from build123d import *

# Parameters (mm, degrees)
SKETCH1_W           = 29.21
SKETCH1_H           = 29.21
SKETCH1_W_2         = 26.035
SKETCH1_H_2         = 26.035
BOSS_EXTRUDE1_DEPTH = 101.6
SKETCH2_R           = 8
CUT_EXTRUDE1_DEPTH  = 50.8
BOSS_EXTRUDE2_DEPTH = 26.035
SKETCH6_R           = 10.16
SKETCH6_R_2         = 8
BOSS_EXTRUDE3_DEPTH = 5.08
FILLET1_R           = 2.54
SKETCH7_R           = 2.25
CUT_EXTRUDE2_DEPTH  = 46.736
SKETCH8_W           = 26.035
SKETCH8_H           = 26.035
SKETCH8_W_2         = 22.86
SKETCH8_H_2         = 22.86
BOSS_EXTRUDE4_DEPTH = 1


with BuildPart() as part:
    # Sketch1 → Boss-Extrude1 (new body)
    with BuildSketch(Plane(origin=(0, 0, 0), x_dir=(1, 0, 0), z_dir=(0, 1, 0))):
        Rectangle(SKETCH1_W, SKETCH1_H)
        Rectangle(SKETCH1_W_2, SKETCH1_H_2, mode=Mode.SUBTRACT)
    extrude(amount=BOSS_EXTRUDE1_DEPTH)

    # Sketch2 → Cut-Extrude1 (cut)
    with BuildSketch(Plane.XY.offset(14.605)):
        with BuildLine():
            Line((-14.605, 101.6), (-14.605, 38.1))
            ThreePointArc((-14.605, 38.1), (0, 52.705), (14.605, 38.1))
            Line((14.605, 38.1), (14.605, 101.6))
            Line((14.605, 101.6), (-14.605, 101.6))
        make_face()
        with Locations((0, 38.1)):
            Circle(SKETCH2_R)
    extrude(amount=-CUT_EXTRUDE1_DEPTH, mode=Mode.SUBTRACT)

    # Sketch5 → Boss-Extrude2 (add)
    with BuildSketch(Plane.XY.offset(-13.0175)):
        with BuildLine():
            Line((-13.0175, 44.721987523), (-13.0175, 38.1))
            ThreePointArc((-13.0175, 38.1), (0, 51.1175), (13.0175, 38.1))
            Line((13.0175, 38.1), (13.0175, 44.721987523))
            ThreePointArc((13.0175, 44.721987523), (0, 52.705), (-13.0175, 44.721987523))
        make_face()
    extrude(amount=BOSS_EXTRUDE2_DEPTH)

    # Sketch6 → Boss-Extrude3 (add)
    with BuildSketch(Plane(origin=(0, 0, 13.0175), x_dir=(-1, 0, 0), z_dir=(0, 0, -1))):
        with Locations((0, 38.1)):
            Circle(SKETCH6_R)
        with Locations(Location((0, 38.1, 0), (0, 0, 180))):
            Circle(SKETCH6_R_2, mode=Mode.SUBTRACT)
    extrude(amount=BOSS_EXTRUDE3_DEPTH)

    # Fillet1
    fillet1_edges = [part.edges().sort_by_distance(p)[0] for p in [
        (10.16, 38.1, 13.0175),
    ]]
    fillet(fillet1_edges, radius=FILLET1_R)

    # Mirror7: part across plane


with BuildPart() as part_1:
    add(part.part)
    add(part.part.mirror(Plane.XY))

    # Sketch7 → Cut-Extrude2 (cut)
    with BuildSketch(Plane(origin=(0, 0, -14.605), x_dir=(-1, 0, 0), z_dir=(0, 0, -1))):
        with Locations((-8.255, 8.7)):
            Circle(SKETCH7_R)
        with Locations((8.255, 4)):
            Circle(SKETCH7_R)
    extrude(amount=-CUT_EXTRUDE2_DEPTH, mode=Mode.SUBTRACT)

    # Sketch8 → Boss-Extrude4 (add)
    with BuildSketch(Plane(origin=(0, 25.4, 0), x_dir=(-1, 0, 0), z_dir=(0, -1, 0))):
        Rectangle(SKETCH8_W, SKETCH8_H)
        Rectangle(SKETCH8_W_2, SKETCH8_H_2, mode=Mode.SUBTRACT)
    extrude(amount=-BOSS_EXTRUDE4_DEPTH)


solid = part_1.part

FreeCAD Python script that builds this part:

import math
import FreeCAD as App
import Part
import Sketcher
Q = App.Units.Quantity


def edges_at(feature, points):
    """Names of the edges that pass closest to the given points."""
    edges = feature.Shape.Edges
    near = lambda p: min(range(len(edges)), key=lambda i: edges[i].distToShape(Part.Vertex(*p))[0])
    return sorted({f"Edge{near(p) + 1}" for p in points})


def add_polygon(sketch, points):
    """Adds a closed chain of lines whose ends are joined by coincident constraints."""
    first, n = sketch.GeometryCount, len(points)
    for a, b in zip(points, points[1:] + points[:1]):
        sketch.addGeometry(Part.LineSegment(App.Vector(*a, 0), App.Vector(*b, 0)), False)
    for i in range(n):
        sketch.addConstraint(Sketcher.Constraint("Coincident", first + i, 2, first + (i + 1) % n, 1))

doc = App.newDocument("Part")
body = doc.addObject("PartDesign::Body", "Body")

# Sketch on XZ plane
sketch1 = body.newObject("Sketcher::SketchObject", "Sketch")
sketch1.AttachmentSupport = (doc.getObject("XZ_Plane"), [""])
sketch1.MapMode = "FlatFace"
add_polygon(sketch1, [(-15, -15), (-15, 15), (15, 15), (15, -15)])  # lines 0-3
add_polygon(sketch1, [(13, 13), (-13, 13), (-13, -13), (13, -13)])  # lines 4-7
sketch1.addConstraint(Sketcher.Constraint("Vertical", 0))
sketch1.addConstraint(Sketcher.Constraint("Horizontal", 1))
sketch1.addConstraint(Sketcher.Constraint("Vertical", 2))
sketch1.addConstraint(Sketcher.Constraint("Horizontal", 3))
sketch1.addConstraint(Sketcher.Constraint("Horizontal", 4))
sketch1.addConstraint(Sketcher.Constraint("Vertical", 5))
sketch1.addConstraint(Sketcher.Constraint("Horizontal", 6))
sketch1.addConstraint(Sketcher.Constraint("Vertical", 7))
sketch1.addConstraint(Sketcher.Constraint("Symmetric", 0, 2, 2, 2, -1, 1))
sketch1.addConstraint(Sketcher.Constraint("Symmetric", 4, 2, 6, 2, -1, 1))
sketch1.addConstraint(Sketcher.Constraint("Equal", 3, 0))
sketch1.addConstraint(Sketcher.Constraint("Equal", 6, 5))
sketch1.addConstraint(Sketcher.Constraint("DistanceX", 1, 1, 1, 2, Q("1.15 in")))
sketch1.addConstraint(Sketcher.Constraint("DistanceX", 4, 2, 4, 1, Q("1.025 in")))
pad1 = body.newObject("PartDesign::Pad", "Pad")
pad1.Profile = sketch1
pad1.Length = Q("4 in")
pad1.Reversed = True

# Sketch on XY plane
sketch2 = body.newObject("Sketcher::SketchObject", "Sketch001")
sketch2.AttachmentSupport = (doc.getObject("XY_Plane"), [""])
sketch2.MapMode = "FlatFace"
sketch2.AttachmentOffset = App.Placement(App.Vector(0, 0, 0.575 * 25.4), App.Rotation())
sketch2.addGeometry(Part.LineSegment(App.Vector(-15, 102, 0), App.Vector(-15, 38, 0)), False)
sketch2.addGeometry(Part.ArcOfCircle(Part.Circle(App.Vector(0, 38, 0), App.Vector(0, 0, 1), 15), math.radians(0), math.radians(180)), False)
sketch2.addGeometry(Part.LineSegment(App.Vector(15, 38, 0), App.Vector(15, 102, 0)), False)
sketch2.addGeometry(Part.LineSegment(App.Vector(15, 102, 0), App.Vector(-15, 102, 0)), False)
sketch2.addGeometry(Part.Circle(App.Vector(0, 38, 0), App.Vector(0, 0, 1), 8), False)
sketch2.addConstraint(Sketcher.Constraint("Tangent", 0, 2, 1, 2))
sketch2.addConstraint(Sketcher.Constraint("Tangent", 1, 1, 2, 1))
sketch2.addConstraint(Sketcher.Constraint("Coincident", 2, 2, 3, 1))
sketch2.addConstraint(Sketcher.Constraint("Coincident", 3, 2, 0, 1))
sketch2.addConstraint(Sketcher.Constraint("Vertical", 0))
sketch2.addConstraint(Sketcher.Constraint("Vertical", 2))
sketch2.addConstraint(Sketcher.Constraint("Horizontal", 3))
sketch2.addConstraint(Sketcher.Constraint("Coincident", 4, 3, 1, 3))
sketch2.addConstraint(Sketcher.Constraint("PointOnObject", 1, 3, -2))
sketch2.addConstraint(Sketcher.Constraint("DistanceY", 0, 2, 0, 1, Q("2.5 in")))
sketch2.addConstraint(Sketcher.Constraint("DistanceY", -1, 1, 2, 2, Q("4 in")))
sketch2.addConstraint(Sketcher.Constraint("Radius", 1, Q("0.575 in")))
sketch2.addConstraint(Sketcher.Constraint("Diameter", 4, Q("16 mm")))
pocket1 = body.newObject("PartDesign::Pocket", "Pocket")
pocket1.Profile = sketch2
pocket1.Length = Q("2 in")

# Sketch on XY plane
sketch3 = body.newObject("Sketcher::SketchObject", "Sketch002")
sketch3.AttachmentSupport = (doc.getObject("XY_Plane"), [""])
sketch3.MapMode = "FlatFace"
sketch3.AttachmentOffset = App.Placement(App.Vector(0, 0, -0.5125 * 25.4), App.Rotation())
sketch3.addGeometry(Part.LineSegment(App.Vector(-13, 45, 0), App.Vector(-13, 38, 0)), False)
sketch3.addGeometry(Part.ArcOfCircle(Part.Circle(App.Vector(0, 38, 0), App.Vector(0, 0, 1), 13), math.radians(0), math.radians(180)), False)
sketch3.addGeometry(Part.LineSegment(App.Vector(13, 38, 0), App.Vector(13, 45, 0)), False)
sketch3.addGeometry(Part.ArcOfCircle(Part.Circle(App.Vector(0, 38, 0), App.Vector(0, 0, 1), 15), math.radians(27), math.radians(153)), False)
sketch3.addConstraint(Sketcher.Constraint("Tangent", 0, 2, 1, 2))
sketch3.addConstraint(Sketcher.Constraint("Tangent", 1, 1, 2, 1))
sketch3.addConstraint(Sketcher.Constraint("Coincident", 2, 2, 3, 1))
sketch3.addConstraint(Sketcher.Constraint("Coincident", 3, 2, 0, 1))
sketch3.addConstraint(Sketcher.Constraint("Vertical", 0))
sketch3.addConstraint(Sketcher.Constraint("Vertical", 2))
sketch3.addConstraint(Sketcher.Constraint("Coincident", 3, 3, 1, 3))
sketch3.addConstraint(Sketcher.Constraint("PointOnObject", 1, 3, -2))
sketch3.addConstraint(Sketcher.Constraint("Radius", 3, Q("0.575 in")))
sketch3.addConstraint(Sketcher.Constraint("DistanceY", -1, 1, 1, 3, Q("1.5 in")))
sketch3.addConstraint(Sketcher.Constraint("Radius", 1, Q("0.5125 in")))
pad2 = body.newObject("PartDesign::Pad", "Pad001")
pad2.Profile = sketch3
pad2.Length = Q("1.025 in")

# Sketch on XY plane
sketch4 = body.newObject("Sketcher::SketchObject", "Sketch003")
sketch4.AttachmentSupport = (doc.getObject("XY_Plane"), [""])
sketch4.MapMode = "FlatFace"
sketch4.AttachmentOffset = App.Placement(App.Vector(0, 0, 0.5125 * 25.4), App.Rotation())
sketch4.addGeometry(Part.Circle(App.Vector(0, 38, 0), App.Vector(0, 0, 1), 10), False)
sketch4.addGeometry(Part.Circle(App.Vector(0, 38, 0), App.Vector(0, 0, 1), 8), False)
sketch4.addConstraint(Sketcher.Constraint("Coincident", 1, 3, 0, 3))
sketch4.addConstraint(Sketcher.Constraint("PointOnObject", 0, 3, -2))
sketch4.addConstraint(Sketcher.Constraint("Diameter", 0, Q("0.8 in")))
sketch4.addConstraint(Sketcher.Constraint("DistanceY", -1, 1, 0, 3, Q("1.5 in")))
sketch4.addConstraint(Sketcher.Constraint("Diameter", 1, Q("16 mm")))
pad3 = body.newObject("PartDesign::Pad", "Pad002")
pad3.Profile = sketch4
pad3.Length = Q("0.2 in")
pad3.Reversed = True
doc.recompute()

fillet = body.newObject("PartDesign::Fillet", "Fillet")
fillet.Base = (pad3, edges_at(pad3, [(10.16, 38.1, 13.018)]))
fillet.Radius = Q("0.1 in")
body2 = doc.addObject("PartDesign::Body", "Body001")
doc.recompute()

body2.BaseFeature = body
doc.recompute()

mirroring = doc.addObject("Part::Mirroring", "Mirroring")
mirroring.Source = body
mirroring.Base = App.Vector(0, 0, 0)
mirroring.Normal = App.Vector(0, 0, 1)
body3 = doc.addObject("PartDesign::Body", "Body002")
body3.BaseFeature = mirroring
boolean = body2.newObject("PartDesign::Boolean", "Boolean")
boolean.Type = "Fuse"
boolean.addObjects([body3])
doc.recompute()

# Sketch on XY plane
sketch5 = body2.newObject("Sketcher::SketchObject", "Sketch004")
sketch5.AttachmentSupport = (doc.getObject("XY_Plane001"), [""])
sketch5.MapMode = "FlatFace"
sketch5.AttachmentOffset = App.Placement(App.Vector(0, 0, -0.575 * 25.4), App.Rotation())
sketch5.addGeometry(Part.Circle(App.Vector(8.3, 8.7, 0), App.Vector(0, 0, 1), 2.2), False)
sketch5.addGeometry(Part.Circle(App.Vector(-8.3, 4, 0), App.Vector(0, 0, 1), 2.2), False)
sketch5.addConstraint(Sketcher.Constraint("Equal", 0, 1))
sketch5.addConstraint(Sketcher.Constraint("Diameter", 0, Q("4.5 mm")))
sketch5.addConstraint(Sketcher.Constraint("DistanceX", 1, 3, 0, 3, Q("0.65 in")))
sketch5.addConstraint(Sketcher.Constraint("DistanceX", -1, 1, 0, 3, Q("0.325 in")))
sketch5.addConstraint(Sketcher.Constraint("DistanceY", -1, 1, 0, 3, Q("8.7 mm")))
sketch5.addConstraint(Sketcher.Constraint("DistanceY", -1, 1, 1, 3, Q("4 mm")))
pocket2 = body2.newObject("PartDesign::Pocket", "Pocket001")
pocket2.Profile = sketch5
pocket2.Length = Q("1.84 in")
pocket2.Reversed = True

# Sketch on XZ plane
sketch6 = body2.newObject("Sketcher::SketchObject", "Sketch005")
sketch6.AttachmentSupport = (doc.getObject("XZ_Plane001"), [""])
sketch6.MapMode = "FlatFace"
sketch6.AttachmentOffset = App.Placement(App.Vector(0, 0, -1 * 25.4), App.Rotation())
add_polygon(sketch6, [(13, -13), (13, 13), (-13, 13), (-13, -13)])  # lines 0-3
add_polygon(sketch6, [(-11, 11), (11, 11), (11, -11), (-11, -11)])  # lines 4-7
sketch6.addConstraint(Sketcher.Constraint("Vertical", 0))
sketch6.addConstraint(Sketcher.Constraint("Horizontal", 1))
sketch6.addConstraint(Sketcher.Constraint("Vertical", 2))
sketch6.addConstraint(Sketcher.Constraint("Horizontal", 3))
sketch6.addConstraint(Sketcher.Constraint("Horizontal", 4))
sketch6.addConstraint(Sketcher.Constraint("Vertical", 5))
sketch6.addConstraint(Sketcher.Constraint("Horizontal", 6))
sketch6.addConstraint(Sketcher.Constraint("Vertical", 7))
sketch6.addConstraint(Sketcher.Constraint("Symmetric", 0, 2, 2, 2, -1, 1))
sketch6.addConstraint(Sketcher.Constraint("Symmetric", 4, 2, 6, 2, -1, 1))
sketch6.addConstraint(Sketcher.Constraint("Equal", 3, 0))
sketch6.addConstraint(Sketcher.Constraint("Equal", 6, 5))
sketch6.addConstraint(Sketcher.Constraint("DistanceX", 4, 1, 4, 2, Q("0.9 in")))
sketch6.addConstraint(Sketcher.Constraint("DistanceX", 1, 2, 1, 1, Q("1.025 in")))
pad4 = body2.newObject("PartDesign::Pad", "Pad003")
pad4.Profile = sketch6
pad4.Length = 1
pad4.Reversed = True
mirroring.Visibility = False

doc.recompute()
